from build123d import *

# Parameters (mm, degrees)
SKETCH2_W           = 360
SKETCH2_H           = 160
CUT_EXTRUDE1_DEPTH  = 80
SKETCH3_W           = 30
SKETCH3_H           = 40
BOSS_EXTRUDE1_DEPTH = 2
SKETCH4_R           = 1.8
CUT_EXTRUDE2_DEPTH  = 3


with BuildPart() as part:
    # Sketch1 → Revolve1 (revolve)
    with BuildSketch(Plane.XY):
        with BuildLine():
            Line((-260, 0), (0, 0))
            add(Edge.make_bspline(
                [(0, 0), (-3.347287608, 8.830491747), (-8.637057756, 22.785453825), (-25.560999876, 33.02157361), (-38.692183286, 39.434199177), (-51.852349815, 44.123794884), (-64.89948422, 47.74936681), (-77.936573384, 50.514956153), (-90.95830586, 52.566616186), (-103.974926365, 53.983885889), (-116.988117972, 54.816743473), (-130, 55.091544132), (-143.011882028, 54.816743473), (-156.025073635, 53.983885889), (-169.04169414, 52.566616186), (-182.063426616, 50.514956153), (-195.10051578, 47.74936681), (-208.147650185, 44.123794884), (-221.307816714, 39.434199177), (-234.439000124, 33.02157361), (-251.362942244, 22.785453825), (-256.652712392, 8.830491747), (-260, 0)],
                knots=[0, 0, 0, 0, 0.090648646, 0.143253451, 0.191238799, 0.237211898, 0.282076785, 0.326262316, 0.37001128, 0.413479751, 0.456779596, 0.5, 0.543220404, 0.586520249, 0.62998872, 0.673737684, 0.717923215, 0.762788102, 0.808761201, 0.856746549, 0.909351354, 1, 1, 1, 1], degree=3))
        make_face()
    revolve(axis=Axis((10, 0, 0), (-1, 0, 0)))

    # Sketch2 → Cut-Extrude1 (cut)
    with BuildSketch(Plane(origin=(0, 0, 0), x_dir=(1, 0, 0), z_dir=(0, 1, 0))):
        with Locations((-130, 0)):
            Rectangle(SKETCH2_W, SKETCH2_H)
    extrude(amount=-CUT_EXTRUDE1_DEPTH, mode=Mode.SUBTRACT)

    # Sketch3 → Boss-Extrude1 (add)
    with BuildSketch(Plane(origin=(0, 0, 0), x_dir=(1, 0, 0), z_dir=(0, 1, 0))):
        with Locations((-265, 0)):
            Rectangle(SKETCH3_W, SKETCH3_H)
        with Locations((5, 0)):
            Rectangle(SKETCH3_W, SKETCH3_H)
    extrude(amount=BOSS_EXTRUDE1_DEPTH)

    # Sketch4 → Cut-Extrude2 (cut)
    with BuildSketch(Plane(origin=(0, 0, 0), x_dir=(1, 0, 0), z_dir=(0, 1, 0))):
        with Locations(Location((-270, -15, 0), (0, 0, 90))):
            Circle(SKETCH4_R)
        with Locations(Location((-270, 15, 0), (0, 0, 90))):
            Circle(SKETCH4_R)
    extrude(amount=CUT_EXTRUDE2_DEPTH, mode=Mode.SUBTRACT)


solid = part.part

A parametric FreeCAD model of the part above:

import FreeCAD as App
import Part
import Sketcher

V = App.Vector
Q = App.Units.Quantity


def add_polygon(sketch, points):
    """Adds a closed chain of lines whose ends are joined by coincident constraints."""
    first, n = sketch.GeometryCount, len(points)
    for a, b in zip(points, points[1:] + points[:1]):
        sketch.addGeometry(Part.LineSegment(App.Vector(*a, 0), App.Vector(*b, 0)), False)
    for i in range(n):
        sketch.addConstraint(Sketcher.Constraint("Coincident", first + i, 2, first + (i + 1) % n, 1))

doc = App.newDocument("Part")
params = doc.addObject("Spreadsheet::Sheet", "Params")
for row, (alias, value) in enumerate([
    ("revolution_angle", "360 deg"),
    ("sketch2_width", "360 mm"),
    ("sketch2_height", "160 mm"),
    ("pocket1_length", "80 mm"),
    ("sketch3_width", "30 mm"),
    ("sketch3_height", "40 mm"),
    ("pad1_length", "2 mm"),
    ("sketch4_diameter", "3.6 mm"),
    ("pocket2_length", "3 mm"),
], start=1):
    params.set(f"A{row}", alias)
    params.set(f"B{row}", "=" + value)
    params.setAlias(f"B{row}", alias)

body = doc.addObject("PartDesign::Body", "Body")

sketch1 = body.newObject("Sketcher::SketchObject", "Sketch")
sketch1.AttachmentSupport = (doc.getObject("XY_Plane"), [""])
sketch1.MapMode = "FlatFace"
sketch1.addGeometry([
    Part.LineSegment(V(-260, 0, 0), V(0, 0, 0)),
    Part.BSplineCurve([V(0, 0, 0), V(-3.347288, 8.830492, 0), V(-8.637058, 22.785454, 0), V(-25.561, 33.021574, 0), V(-38.692183, 39.434199, 0), V(-51.85235, 44.123795, 0), V(-64.899484, 47.749367, 0), V(-77.936573, 50.514956, 0), V(-90.958306, 52.566616, 0), V(-103.974926, 53.983886, 0), V(-116.988118, 54.816743, 0), V(-130, 55.091544, 0), V(-143.011882, 54.816743, 0), V(-156.025074, 53.983886, 0), V(-169.041694, 52.566616, 0), V(-182.063427, 50.514956, 0), V(-195.100516, 47.749367, 0), V(-208.14765, 44.123795, 0), V(-221.307817, 39.434199, 0), V(-234.439, 33.021574, 0), V(-251.362942, 22.785454, 0), V(-256.652712, 8.830492, 0), V(-260, 0, 0)], [4, 1, 1, 1, 1, 1, 1, 1, 1, 1, 1, 1, 1, 1, 1, 1, 1, 1, 1, 1, 4], [0, 0.090648646, 0.143253451, 0.191238799, 0.237211898, 0.282076785, 0.326262316, 0.37001128, 0.413479751, 0.456779596, 0.5, 0.543220404, 0.586520249, 0.62998872, 0.673737684, 0.717923215, 0.762788102, 0.808761201, 0.856746549, 0.909351354, 1], False, 3, [1, 1, 1, 1, 1, 1, 1, 1, 1, 1, 1, 1, 1, 1, 1, 1, 1, 1, 1, 1, 1, 1, 1], False),
], False)
sketch1.addConstraint([
    Sketcher.Constraint("Block", 1),
    Sketcher.Constraint("Coincident", 0, 1, 1, 2),
    Sketcher.Constraint("Coincident", 1, 1, 0, 2),
])
revolution = body.newObject("PartDesign::Revolution", "Revolution")
revolution.Profile = sketch1
revolution.ReferenceAxis = (sketch1, ["H_Axis"])
revolution.setExpression("Angle", "Params.revolution_angle")

sketch2 = body.newObject("Sketcher::SketchObject", "Sketch001")
sketch2.AttachmentSupport = (doc.getObject("XZ_Plane"), [""])
sketch2.MapMode = "FlatFace"
add_polygon(sketch2, [(-310, -80), (-310, 80), (50, 80), (50, -80)])
sketch2.addConstraint([
    Sketcher.Constraint("Vertical", 0),
    Sketcher.Constraint("Horizontal", 1),
    Sketcher.Constraint("Vertical", 2),
    Sketcher.Constraint("Horizontal", 3),
    Sketcher.Constraint("DistanceX", 1, 1, 1, 2, Q("360 mm")),
    Sketcher.Constraint("DistanceY", 0, 1, 0, 2, Q("160 mm")),
    Sketcher.Constraint("DistanceX", 0, 2, -1, 1, Q("310 mm")),
    Sketcher.Constraint("DistanceY", -1, 1, 0, 2, Q("80 mm")),
])
sketch2.setExpression("Constraints[8]", "Params.sketch2_width")
sketch2.setExpression("Constraints[9]", "Params.sketch2_height")
pocket1 = body.newObject("PartDesign::Pocket", "Pocket")
pocket1.Profile = sketch2
pocket1.setExpression("Length", "Params.pocket1_length")
pocket1.Reversed = True

sketch3 = body.newObject("Sketcher::SketchObject", "Sketch002")
sketch3.AttachmentSupport = (doc.getObject("XZ_Plane"), [""])
sketch3.MapMode = "FlatFace"
add_polygon(sketch3, [(-280, -20), (-280, 20), (-250, 20), (-250, -20)])
add_polygon(sketch3, [(-10, -20), (-10, 20), (20, 20), (20, -20)])
sketch3.addConstraint([
    Sketcher.Constraint("Vertical", 0),
    Sketcher.Constraint("Horizontal", 1),
    Sketcher.Constraint("Vertical", 2),
    Sketcher.Constraint("Horizontal", 3),
    Sketcher.Constraint("Vertical", 4),
    Sketcher.Constraint("Horizontal", 5),
    Sketcher.Constraint("Vertical", 6),
    Sketcher.Constraint("Horizontal", 7),
    Sketcher.Constraint("Horizontal", 1, 2, 4, 2),
    Sketcher.Constraint("Horizontal", 3, 2, 6, 2),
    Sketcher.Constraint("Equal", 3, 5),
    Sketcher.Constraint("DistanceX", 1, 1, 1, 2, Q("30 mm")),
    Sketcher.Constraint("DistanceY", 0, 1, 0, 2, Q("40 mm")),
    Sketcher.Constraint("DistanceX", 0, 2, -1, 1, Q("280 mm")),
    Sketcher.Constraint("DistanceY", -1, 1, 0, 2, Q("20 mm")),
    Sketcher.Constraint("DistanceX", 4, 2, -1, 1, Q("10 mm")),
])
sketch3.setExpression("Constraints[19]", "Params.sketch3_width")
sketch3.setExpression("Constraints[20]", "Params.sketch3_height")
pad1 = body.newObject("PartDesign::Pad", "Pad")
pad1.Profile = sketch3
pad1.setExpression("Length", "Params.pad1_length")
pad1.Reversed = True

sketch4 = body.newObject("Sketcher::SketchObject", "Sketch003")
sketch4.AttachmentSupport = (doc.getObject("XZ_Plane"), [""])
sketch4.MapMode = "FlatFace"
sketch4.addGeometry([
    Part.Circle(V(-270, 15, 0), V(0, 0, 1), 1.8),
    Part.Circle(V(-270, -15, 0), V(0, 0, 1), 1.8),
], False)
sketch4.addConstraint([
    Sketcher.Constraint("Equal", 0, 1),
    Sketcher.Constraint("Symmetric", 0, 3, 1, 3, -1),
    Sketcher.Constraint("Diameter", 0, Q("3.6 mm")),
    Sketcher.Constraint("DistanceX", 0, 3, -1, 1, Q("270 mm")),
    Sketcher.Constraint("DistanceY", -1, 1, 0, 3, Q("15 mm")),
])
sketch4.setExpression("Constraints[2]", "Params.sketch4_diameter")
pocket2 = body.newObject("PartDesign::Pocket", "Pocket001")
pocket2.Profile = sketch4
pocket2.setExpression("Length", "Params.pocket2_length")

doc.recompute()
